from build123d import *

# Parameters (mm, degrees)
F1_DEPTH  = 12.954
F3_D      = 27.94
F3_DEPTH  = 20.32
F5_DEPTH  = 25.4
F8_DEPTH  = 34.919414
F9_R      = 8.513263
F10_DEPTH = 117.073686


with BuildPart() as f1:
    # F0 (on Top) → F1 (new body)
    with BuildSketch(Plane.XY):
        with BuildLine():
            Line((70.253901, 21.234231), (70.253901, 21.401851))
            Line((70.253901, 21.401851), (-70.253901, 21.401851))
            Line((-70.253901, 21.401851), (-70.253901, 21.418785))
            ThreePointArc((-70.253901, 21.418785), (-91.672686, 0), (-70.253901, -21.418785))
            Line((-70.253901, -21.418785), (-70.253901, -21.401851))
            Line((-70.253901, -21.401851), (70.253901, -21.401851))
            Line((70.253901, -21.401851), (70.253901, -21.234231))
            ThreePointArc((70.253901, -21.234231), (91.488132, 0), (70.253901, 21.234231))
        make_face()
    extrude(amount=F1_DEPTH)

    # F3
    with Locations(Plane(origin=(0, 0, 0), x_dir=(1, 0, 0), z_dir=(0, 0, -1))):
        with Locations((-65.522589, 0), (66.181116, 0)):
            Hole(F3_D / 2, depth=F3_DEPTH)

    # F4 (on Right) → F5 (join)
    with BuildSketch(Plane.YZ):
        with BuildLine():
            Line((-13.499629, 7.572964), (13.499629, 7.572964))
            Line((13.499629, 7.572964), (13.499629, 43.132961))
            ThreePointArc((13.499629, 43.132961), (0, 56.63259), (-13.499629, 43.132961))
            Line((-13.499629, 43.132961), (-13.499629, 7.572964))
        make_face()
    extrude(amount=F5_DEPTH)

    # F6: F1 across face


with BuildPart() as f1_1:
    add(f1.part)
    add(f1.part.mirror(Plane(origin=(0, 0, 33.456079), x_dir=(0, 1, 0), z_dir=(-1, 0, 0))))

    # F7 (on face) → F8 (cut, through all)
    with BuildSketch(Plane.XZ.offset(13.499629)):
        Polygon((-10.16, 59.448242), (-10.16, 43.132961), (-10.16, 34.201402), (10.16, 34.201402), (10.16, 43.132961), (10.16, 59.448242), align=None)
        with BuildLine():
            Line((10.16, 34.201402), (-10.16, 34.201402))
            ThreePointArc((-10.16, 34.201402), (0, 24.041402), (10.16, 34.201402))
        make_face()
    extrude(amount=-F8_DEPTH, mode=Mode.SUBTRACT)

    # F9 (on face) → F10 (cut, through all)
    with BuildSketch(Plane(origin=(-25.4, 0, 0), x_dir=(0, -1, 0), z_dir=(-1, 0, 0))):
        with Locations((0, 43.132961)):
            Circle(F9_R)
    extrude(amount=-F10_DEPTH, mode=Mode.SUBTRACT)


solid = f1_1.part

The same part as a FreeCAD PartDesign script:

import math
import FreeCAD as App
import Part
import Sketcher
Q = App.Units.Quantity

doc = App.newDocument("Part")
params = doc.addObject("Spreadsheet::Sheet", "Params")
for row, (alias, value) in enumerate([
    ("pad1_length", "0.51 in"),
    ("sketch2_diameter", "1.1 in"),
    ("hole_diameter", "1.1 in"),
    ("hole_depth", "0.8 in"),
    ("sketch3_height", "1.3999999 in"),
    ("pad2_length", "1 in"),
    ("sketch4_radius", "0.4 in"),
], start=1):
    params.set(f"A{row}", alias)
    params.set(f"B{row}", "=" + value)
    params.setAlias(f"B{row}", alias)

body = doc.addObject("PartDesign::Body", "Body")

# Sketch on XY plane
sketch1 = body.newObject("Sketcher::SketchObject", "Sketch")
sketch1.AttachmentSupport = (doc.getObject("XY_Plane"), [""])
sketch1.MapMode = "FlatFace"
sketch1.addGeometry(Part.LineSegment(App.Vector(70.253901, 21.234231, 0), App.Vector(70.253901, 21.401851, 0)), False)
sketch1.addGeometry(Part.LineSegment(App.Vector(70.253901, 21.401851, 0), App.Vector(-70.253901, 21.401851, 0)), False)
sketch1.addGeometry(Part.LineSegment(App.Vector(-70.253901, 21.401851, 0), App.Vector(-70.253901, 21.418785, 0)), False)
sketch1.addGeometry(Part.ArcOfCircle(Part.Circle(App.Vector(-70.253901, 0, 0), App.Vector(0, 0, 1), 21.418785), math.radians(90), math.radians(270)), False)
sketch1.addGeometry(Part.LineSegment(App.Vector(-70.253901, -21.418785, 0), App.Vector(-70.253901, -21.401851, 0)), False)
sketch1.addGeometry(Part.LineSegment(App.Vector(-70.253901, -21.401851, 0), App.Vector(70.253901, -21.401851, 0)), False)
sketch1.addGeometry(Part.LineSegment(App.Vector(70.253901, -21.401851, 0), App.Vector(70.253901, -21.234231, 0)), False)
sketch1.addGeometry(Part.ArcOfCircle(Part.Circle(App.Vector(70.253901, 0, 0), App.Vector(0, 0, 1), 21.234231), math.radians(-90), math.radians(90)), False)
sketch1.addConstraint(Sketcher.Constraint("Coincident", 0, 2, 1, 1))
sketch1.addConstraint(Sketcher.Constraint("Coincident", 1, 2, 2, 1))
sketch1.addConstraint(Sketcher.Constraint("Coincident", 2, 2, 3, 1))
sketch1.addConstraint(Sketcher.Constraint("Coincident", 3, 2, 4, 1))
sketch1.addConstraint(Sketcher.Constraint("Coincident", 4, 2, 5, 1))
sketch1.addConstraint(Sketcher.Constraint("Coincident", 5, 2, 6, 1))
sketch1.addConstraint(Sketcher.Constraint("Coincident", 6, 2, 7, 1))
sketch1.addConstraint(Sketcher.Constraint("Coincident", 7, 2, 0, 1))
sketch1.addConstraint(Sketcher.Constraint("Vertical", 0))
sketch1.addConstraint(Sketcher.Constraint("Horizontal", 1))
sketch1.addConstraint(Sketcher.Constraint("Vertical", 2))
sketch1.addConstraint(Sketcher.Constraint("Vertical", 4))
sketch1.addConstraint(Sketcher.Constraint("Horizontal", 5))
sketch1.addConstraint(Sketcher.Constraint("Vertical", 6))
sketch1.addConstraint(Sketcher.Constraint("Symmetric", 3, 3, 7, 3, -1, 1))
sketch1.addConstraint(Sketcher.Constraint("Symmetric", 0, 2, 4, 2, -1, 1))
sketch1.addConstraint(Sketcher.Constraint("Symmetric", 2, 2, 3, 2, -1))
sketch1.addConstraint(Sketcher.Constraint("Vertical", 7, 3, 0, 2))
sketch1.addConstraint(Sketcher.Constraint("Vertical", 0, 2, 5, 2))
sketch1.addConstraint(Sketcher.Constraint("Radius", 7, 21.234231))
sketch1.addConstraint(Sketcher.Constraint("DistanceX", 1, 2, 1, 1, 140.507802))
sketch1.addConstraint(Sketcher.Constraint("Radius", 3, 21.418785))
sketch1.addConstraint(Sketcher.Constraint("DistanceY", 0, 1, 0, 2, 0.16762))
pad1 = body.newObject("PartDesign::Pad", "Pad")
pad1.Profile = sketch1
pad1.setExpression("Length", "Params.pad1_length")

# Sketch on XY plane
sketch2 = body.newObject("Sketcher::SketchObject", "Sketch001")
sketch2.AttachmentSupport = (doc.getObject("XY_Plane"), [""])
sketch2.MapMode = "FlatFace"
sketch2.addGeometry(Part.Circle(App.Vector(-65.522589, 0, 0), App.Vector(0, 0, 1), 13.97), False)
sketch2.addGeometry(Part.Circle(App.Vector(66.181116, 0, 0), App.Vector(0, 0, 1), 13.97), False)
sketch2.addConstraint(Sketcher.Constraint("Equal", 0, 1))
sketch2.addConstraint(Sketcher.Constraint("PointOnObject", 0, 3, -1))
sketch2.addConstraint(Sketcher.Constraint("PointOnObject", 1, 3, -1))
sketch2.addConstraint(Sketcher.Constraint("Diameter", 0, Q("1.1 in")))
sketch2.addConstraint(Sketcher.Constraint("DistanceX", 0, 3, -1, 1, 65.522589))
sketch2.addConstraint(Sketcher.Constraint("DistanceX", -1, 1, 1, 3, 66.181116))
sketch2.setExpression("Constraints[3]", "Params.sketch2_diameter")
doc.recompute()
hole = body.newObject("PartDesign::Hole", "Hole")
hole.Profile = sketch2
hole.ThreadType = "None"
hole.setExpression("Diameter", "Params.hole_diameter")
hole.DepthType = "Dimension"
hole.setExpression("Depth", "Params.hole_depth")
hole.DrillPoint = "Flat"
hole.Reversed = True

# Sketch on YZ plane
sketch3 = body.newObject("Sketcher::SketchObject", "Sketch002")
sketch3.AttachmentSupport = (doc.getObject("YZ_Plane"), [""])
sketch3.MapMode = "FlatFace"
sketch3.addGeometry(Part.LineSegment(App.Vector(-13.499629, 7.572964, 0), App.Vector(13.499629, 7.572964, 0)), False)
sketch3.addGeometry(Part.LineSegment(App.Vector(13.499629, 7.572964, 0), App.Vector(13.499629, 43.132961, 0)), False)
sketch3.addGeometry(Part.ArcOfCircle(Part.Circle(App.Vector(0, 43.132961, 0), App.Vector(0, 0, 1), 13.499629), math.radians(0), math.radians(180)), False)
sketch3.addGeometry(Part.LineSegment(App.Vector(-13.499629, 43.132961, 0), App.Vector(-13.499629, 7.572964, 0)), False)
sketch3.addConstraint(Sketcher.Constraint("Coincident", 0, 2, 1, 1))
sketch3.addConstraint(Sketcher.Constraint("Tangent", 1, 2, 2, 1))
sketch3.addConstraint(Sketcher.Constraint("Tangent", 2, 2, 3, 1))
sketch3.addConstraint(Sketcher.Constraint("Coincident", 3, 2, 0, 1))
sketch3.addConstraint(Sketcher.Constraint("Horizontal", 0))
sketch3.addConstraint(Sketcher.Constraint("Vertical", 1))
sketch3.addConstraint(Sketcher.Constraint("Vertical", 3))
sketch3.addConstraint(Sketcher.Constraint("PointOnObject", 2, 3, -2))
sketch3.addConstraint(Sketcher.Constraint("DistanceY", 1, 1, 1, 2, Q("1.3999999 in")))
sketch3.addConstraint(Sketcher.Constraint("Radius", 2, 13.499629))
sketch3.addConstraint(Sketcher.Constraint("DistanceY", -1, 1, 2, 3, 43.132961))
sketch3.setExpression("Constraints[8]", "Params.sketch3_height")
pad2 = body.newObject("PartDesign::Pad", "Pad001")
pad2.Profile = sketch3
pad2.setExpression("Length", "Params.pad2_length")
body2 = doc.addObject("PartDesign::Body", "Body001")
doc.recompute()

body2.BaseFeature = body
doc.recompute()

mirroring = doc.addObject("Part::Mirroring", "Mirroring")
mirroring.Source = body
mirroring.Base = App.Vector(0, 0, 33.456079)
mirroring.Normal = App.Vector(-1, 0, 0)
body3 = doc.addObject("PartDesign::Body", "Body002")
body3.BaseFeature = mirroring
boolean = body2.newObject("PartDesign::Boolean", "Boolean")
boolean.Type = "Fuse"
boolean.addObjects([body3])
doc.recompute()

# Sketch on XZ plane
sketch4 = body2.newObject("Sketcher::SketchObject", "Sketch003")
sketch4.AttachmentSupport = (doc.getObject("XZ_Plane001"), [""])
sketch4.MapMode = "FlatFace"
sketch4.AttachmentOffset = App.Placement(App.Vector(0, 0, 13.499629), App.Rotation())
sketch4.addGeometry(Part.LineSegment(App.Vector(-10.16, 59.448242, 0), App.Vector(-10.16, 34.201402, 0)), False)
sketch4.addGeometry(Part.ArcOfCircle(Part.Circle(App.Vector(0, 34.201402, 0), App.Vector(0, 0, 1), 10.16), math.radians(180), math.radians(360)), False)
sketch4.addGeometry(Part.LineSegment(App.Vector(10.16, 34.201402, 0), App.Vector(10.16, 59.448242, 0)), False)
sketch4.addGeometry(Part.LineSegment(App.Vector(10.16, 59.448242, 0), App.Vector(-10.16, 59.448242, 0)), False)
sketch4.addConstraint(Sketcher.Constraint("Tangent", 0, 2, 1, 1))
sketch4.addConstraint(Sketcher.Constraint("Tangent", 1, 2, 2, 1))
sketch4.addConstraint(Sketcher.Constraint("Coincident", 2, 2, 3, 1))
sketch4.addConstraint(Sketcher.Constraint("Coincident", 3, 2, 0, 1))
sketch4.addConstraint(Sketcher.Constraint("Vertical", 0))
sketch4.addConstraint(Sketcher.Constraint("Vertical", 2))
sketch4.addConstraint(Sketcher.Constraint("Horizontal", 3))
sketch4.addConstraint(Sketcher.Constraint("PointOnObject", 1, 3, -2))
sketch4.addConstraint(Sketcher.Constraint("Radius", 1, Q("0.4 in")))
sketch4.addConstraint(Sketcher.Constraint("DistanceY", 0, 2, 0, 1, 25.24684))
sketch4.addConstraint(Sketcher.Constraint("DistanceY", -1, 1, 1, 3, 34.201402))
sketch4.setExpression("Constraints[8]", "Params.sketch4_radius")
pocket1 = body2.newObject("PartDesign::Pocket", "Pocket")
pocket1.Profile = sketch4
pocket1.Type = "ThroughAll"

# Sketch on YZ plane
sketch5 = body2.newObject("Sketcher::SketchObject", "Sketch004")
sketch5.AttachmentSupport = (doc.getObject("YZ_Plane001"), [""])
sketch5.MapMode = "FlatFace"
sketch5.AttachmentOffset = App.Placement(App.Vector(0, 0, -1 * 25.4), App.Rotation())
sketch5.addGeometry(Part.Circle(App.Vector(0, 43.132961, 0), App.Vector(0, 0, 1), 8.513263), False)
sketch5.addConstraint(Sketcher.Constraint("PointOnObject", 0, 3, -2))
sketch5.addConstraint(Sketcher.Constraint("Diameter", 0, 17.026526))
sketch5.addConstraint(Sketcher.Constraint("DistanceY", -1, 1, 0, 3, 43.132961))
pocket2 = body2.newObject("PartDesign::Pocket", "Pocket001")
pocket2.Profile = sketch5
pocket2.Type = "ThroughAll"
pocket2.Reversed = True
mirroring.Visibility = False

doc.recompute()
